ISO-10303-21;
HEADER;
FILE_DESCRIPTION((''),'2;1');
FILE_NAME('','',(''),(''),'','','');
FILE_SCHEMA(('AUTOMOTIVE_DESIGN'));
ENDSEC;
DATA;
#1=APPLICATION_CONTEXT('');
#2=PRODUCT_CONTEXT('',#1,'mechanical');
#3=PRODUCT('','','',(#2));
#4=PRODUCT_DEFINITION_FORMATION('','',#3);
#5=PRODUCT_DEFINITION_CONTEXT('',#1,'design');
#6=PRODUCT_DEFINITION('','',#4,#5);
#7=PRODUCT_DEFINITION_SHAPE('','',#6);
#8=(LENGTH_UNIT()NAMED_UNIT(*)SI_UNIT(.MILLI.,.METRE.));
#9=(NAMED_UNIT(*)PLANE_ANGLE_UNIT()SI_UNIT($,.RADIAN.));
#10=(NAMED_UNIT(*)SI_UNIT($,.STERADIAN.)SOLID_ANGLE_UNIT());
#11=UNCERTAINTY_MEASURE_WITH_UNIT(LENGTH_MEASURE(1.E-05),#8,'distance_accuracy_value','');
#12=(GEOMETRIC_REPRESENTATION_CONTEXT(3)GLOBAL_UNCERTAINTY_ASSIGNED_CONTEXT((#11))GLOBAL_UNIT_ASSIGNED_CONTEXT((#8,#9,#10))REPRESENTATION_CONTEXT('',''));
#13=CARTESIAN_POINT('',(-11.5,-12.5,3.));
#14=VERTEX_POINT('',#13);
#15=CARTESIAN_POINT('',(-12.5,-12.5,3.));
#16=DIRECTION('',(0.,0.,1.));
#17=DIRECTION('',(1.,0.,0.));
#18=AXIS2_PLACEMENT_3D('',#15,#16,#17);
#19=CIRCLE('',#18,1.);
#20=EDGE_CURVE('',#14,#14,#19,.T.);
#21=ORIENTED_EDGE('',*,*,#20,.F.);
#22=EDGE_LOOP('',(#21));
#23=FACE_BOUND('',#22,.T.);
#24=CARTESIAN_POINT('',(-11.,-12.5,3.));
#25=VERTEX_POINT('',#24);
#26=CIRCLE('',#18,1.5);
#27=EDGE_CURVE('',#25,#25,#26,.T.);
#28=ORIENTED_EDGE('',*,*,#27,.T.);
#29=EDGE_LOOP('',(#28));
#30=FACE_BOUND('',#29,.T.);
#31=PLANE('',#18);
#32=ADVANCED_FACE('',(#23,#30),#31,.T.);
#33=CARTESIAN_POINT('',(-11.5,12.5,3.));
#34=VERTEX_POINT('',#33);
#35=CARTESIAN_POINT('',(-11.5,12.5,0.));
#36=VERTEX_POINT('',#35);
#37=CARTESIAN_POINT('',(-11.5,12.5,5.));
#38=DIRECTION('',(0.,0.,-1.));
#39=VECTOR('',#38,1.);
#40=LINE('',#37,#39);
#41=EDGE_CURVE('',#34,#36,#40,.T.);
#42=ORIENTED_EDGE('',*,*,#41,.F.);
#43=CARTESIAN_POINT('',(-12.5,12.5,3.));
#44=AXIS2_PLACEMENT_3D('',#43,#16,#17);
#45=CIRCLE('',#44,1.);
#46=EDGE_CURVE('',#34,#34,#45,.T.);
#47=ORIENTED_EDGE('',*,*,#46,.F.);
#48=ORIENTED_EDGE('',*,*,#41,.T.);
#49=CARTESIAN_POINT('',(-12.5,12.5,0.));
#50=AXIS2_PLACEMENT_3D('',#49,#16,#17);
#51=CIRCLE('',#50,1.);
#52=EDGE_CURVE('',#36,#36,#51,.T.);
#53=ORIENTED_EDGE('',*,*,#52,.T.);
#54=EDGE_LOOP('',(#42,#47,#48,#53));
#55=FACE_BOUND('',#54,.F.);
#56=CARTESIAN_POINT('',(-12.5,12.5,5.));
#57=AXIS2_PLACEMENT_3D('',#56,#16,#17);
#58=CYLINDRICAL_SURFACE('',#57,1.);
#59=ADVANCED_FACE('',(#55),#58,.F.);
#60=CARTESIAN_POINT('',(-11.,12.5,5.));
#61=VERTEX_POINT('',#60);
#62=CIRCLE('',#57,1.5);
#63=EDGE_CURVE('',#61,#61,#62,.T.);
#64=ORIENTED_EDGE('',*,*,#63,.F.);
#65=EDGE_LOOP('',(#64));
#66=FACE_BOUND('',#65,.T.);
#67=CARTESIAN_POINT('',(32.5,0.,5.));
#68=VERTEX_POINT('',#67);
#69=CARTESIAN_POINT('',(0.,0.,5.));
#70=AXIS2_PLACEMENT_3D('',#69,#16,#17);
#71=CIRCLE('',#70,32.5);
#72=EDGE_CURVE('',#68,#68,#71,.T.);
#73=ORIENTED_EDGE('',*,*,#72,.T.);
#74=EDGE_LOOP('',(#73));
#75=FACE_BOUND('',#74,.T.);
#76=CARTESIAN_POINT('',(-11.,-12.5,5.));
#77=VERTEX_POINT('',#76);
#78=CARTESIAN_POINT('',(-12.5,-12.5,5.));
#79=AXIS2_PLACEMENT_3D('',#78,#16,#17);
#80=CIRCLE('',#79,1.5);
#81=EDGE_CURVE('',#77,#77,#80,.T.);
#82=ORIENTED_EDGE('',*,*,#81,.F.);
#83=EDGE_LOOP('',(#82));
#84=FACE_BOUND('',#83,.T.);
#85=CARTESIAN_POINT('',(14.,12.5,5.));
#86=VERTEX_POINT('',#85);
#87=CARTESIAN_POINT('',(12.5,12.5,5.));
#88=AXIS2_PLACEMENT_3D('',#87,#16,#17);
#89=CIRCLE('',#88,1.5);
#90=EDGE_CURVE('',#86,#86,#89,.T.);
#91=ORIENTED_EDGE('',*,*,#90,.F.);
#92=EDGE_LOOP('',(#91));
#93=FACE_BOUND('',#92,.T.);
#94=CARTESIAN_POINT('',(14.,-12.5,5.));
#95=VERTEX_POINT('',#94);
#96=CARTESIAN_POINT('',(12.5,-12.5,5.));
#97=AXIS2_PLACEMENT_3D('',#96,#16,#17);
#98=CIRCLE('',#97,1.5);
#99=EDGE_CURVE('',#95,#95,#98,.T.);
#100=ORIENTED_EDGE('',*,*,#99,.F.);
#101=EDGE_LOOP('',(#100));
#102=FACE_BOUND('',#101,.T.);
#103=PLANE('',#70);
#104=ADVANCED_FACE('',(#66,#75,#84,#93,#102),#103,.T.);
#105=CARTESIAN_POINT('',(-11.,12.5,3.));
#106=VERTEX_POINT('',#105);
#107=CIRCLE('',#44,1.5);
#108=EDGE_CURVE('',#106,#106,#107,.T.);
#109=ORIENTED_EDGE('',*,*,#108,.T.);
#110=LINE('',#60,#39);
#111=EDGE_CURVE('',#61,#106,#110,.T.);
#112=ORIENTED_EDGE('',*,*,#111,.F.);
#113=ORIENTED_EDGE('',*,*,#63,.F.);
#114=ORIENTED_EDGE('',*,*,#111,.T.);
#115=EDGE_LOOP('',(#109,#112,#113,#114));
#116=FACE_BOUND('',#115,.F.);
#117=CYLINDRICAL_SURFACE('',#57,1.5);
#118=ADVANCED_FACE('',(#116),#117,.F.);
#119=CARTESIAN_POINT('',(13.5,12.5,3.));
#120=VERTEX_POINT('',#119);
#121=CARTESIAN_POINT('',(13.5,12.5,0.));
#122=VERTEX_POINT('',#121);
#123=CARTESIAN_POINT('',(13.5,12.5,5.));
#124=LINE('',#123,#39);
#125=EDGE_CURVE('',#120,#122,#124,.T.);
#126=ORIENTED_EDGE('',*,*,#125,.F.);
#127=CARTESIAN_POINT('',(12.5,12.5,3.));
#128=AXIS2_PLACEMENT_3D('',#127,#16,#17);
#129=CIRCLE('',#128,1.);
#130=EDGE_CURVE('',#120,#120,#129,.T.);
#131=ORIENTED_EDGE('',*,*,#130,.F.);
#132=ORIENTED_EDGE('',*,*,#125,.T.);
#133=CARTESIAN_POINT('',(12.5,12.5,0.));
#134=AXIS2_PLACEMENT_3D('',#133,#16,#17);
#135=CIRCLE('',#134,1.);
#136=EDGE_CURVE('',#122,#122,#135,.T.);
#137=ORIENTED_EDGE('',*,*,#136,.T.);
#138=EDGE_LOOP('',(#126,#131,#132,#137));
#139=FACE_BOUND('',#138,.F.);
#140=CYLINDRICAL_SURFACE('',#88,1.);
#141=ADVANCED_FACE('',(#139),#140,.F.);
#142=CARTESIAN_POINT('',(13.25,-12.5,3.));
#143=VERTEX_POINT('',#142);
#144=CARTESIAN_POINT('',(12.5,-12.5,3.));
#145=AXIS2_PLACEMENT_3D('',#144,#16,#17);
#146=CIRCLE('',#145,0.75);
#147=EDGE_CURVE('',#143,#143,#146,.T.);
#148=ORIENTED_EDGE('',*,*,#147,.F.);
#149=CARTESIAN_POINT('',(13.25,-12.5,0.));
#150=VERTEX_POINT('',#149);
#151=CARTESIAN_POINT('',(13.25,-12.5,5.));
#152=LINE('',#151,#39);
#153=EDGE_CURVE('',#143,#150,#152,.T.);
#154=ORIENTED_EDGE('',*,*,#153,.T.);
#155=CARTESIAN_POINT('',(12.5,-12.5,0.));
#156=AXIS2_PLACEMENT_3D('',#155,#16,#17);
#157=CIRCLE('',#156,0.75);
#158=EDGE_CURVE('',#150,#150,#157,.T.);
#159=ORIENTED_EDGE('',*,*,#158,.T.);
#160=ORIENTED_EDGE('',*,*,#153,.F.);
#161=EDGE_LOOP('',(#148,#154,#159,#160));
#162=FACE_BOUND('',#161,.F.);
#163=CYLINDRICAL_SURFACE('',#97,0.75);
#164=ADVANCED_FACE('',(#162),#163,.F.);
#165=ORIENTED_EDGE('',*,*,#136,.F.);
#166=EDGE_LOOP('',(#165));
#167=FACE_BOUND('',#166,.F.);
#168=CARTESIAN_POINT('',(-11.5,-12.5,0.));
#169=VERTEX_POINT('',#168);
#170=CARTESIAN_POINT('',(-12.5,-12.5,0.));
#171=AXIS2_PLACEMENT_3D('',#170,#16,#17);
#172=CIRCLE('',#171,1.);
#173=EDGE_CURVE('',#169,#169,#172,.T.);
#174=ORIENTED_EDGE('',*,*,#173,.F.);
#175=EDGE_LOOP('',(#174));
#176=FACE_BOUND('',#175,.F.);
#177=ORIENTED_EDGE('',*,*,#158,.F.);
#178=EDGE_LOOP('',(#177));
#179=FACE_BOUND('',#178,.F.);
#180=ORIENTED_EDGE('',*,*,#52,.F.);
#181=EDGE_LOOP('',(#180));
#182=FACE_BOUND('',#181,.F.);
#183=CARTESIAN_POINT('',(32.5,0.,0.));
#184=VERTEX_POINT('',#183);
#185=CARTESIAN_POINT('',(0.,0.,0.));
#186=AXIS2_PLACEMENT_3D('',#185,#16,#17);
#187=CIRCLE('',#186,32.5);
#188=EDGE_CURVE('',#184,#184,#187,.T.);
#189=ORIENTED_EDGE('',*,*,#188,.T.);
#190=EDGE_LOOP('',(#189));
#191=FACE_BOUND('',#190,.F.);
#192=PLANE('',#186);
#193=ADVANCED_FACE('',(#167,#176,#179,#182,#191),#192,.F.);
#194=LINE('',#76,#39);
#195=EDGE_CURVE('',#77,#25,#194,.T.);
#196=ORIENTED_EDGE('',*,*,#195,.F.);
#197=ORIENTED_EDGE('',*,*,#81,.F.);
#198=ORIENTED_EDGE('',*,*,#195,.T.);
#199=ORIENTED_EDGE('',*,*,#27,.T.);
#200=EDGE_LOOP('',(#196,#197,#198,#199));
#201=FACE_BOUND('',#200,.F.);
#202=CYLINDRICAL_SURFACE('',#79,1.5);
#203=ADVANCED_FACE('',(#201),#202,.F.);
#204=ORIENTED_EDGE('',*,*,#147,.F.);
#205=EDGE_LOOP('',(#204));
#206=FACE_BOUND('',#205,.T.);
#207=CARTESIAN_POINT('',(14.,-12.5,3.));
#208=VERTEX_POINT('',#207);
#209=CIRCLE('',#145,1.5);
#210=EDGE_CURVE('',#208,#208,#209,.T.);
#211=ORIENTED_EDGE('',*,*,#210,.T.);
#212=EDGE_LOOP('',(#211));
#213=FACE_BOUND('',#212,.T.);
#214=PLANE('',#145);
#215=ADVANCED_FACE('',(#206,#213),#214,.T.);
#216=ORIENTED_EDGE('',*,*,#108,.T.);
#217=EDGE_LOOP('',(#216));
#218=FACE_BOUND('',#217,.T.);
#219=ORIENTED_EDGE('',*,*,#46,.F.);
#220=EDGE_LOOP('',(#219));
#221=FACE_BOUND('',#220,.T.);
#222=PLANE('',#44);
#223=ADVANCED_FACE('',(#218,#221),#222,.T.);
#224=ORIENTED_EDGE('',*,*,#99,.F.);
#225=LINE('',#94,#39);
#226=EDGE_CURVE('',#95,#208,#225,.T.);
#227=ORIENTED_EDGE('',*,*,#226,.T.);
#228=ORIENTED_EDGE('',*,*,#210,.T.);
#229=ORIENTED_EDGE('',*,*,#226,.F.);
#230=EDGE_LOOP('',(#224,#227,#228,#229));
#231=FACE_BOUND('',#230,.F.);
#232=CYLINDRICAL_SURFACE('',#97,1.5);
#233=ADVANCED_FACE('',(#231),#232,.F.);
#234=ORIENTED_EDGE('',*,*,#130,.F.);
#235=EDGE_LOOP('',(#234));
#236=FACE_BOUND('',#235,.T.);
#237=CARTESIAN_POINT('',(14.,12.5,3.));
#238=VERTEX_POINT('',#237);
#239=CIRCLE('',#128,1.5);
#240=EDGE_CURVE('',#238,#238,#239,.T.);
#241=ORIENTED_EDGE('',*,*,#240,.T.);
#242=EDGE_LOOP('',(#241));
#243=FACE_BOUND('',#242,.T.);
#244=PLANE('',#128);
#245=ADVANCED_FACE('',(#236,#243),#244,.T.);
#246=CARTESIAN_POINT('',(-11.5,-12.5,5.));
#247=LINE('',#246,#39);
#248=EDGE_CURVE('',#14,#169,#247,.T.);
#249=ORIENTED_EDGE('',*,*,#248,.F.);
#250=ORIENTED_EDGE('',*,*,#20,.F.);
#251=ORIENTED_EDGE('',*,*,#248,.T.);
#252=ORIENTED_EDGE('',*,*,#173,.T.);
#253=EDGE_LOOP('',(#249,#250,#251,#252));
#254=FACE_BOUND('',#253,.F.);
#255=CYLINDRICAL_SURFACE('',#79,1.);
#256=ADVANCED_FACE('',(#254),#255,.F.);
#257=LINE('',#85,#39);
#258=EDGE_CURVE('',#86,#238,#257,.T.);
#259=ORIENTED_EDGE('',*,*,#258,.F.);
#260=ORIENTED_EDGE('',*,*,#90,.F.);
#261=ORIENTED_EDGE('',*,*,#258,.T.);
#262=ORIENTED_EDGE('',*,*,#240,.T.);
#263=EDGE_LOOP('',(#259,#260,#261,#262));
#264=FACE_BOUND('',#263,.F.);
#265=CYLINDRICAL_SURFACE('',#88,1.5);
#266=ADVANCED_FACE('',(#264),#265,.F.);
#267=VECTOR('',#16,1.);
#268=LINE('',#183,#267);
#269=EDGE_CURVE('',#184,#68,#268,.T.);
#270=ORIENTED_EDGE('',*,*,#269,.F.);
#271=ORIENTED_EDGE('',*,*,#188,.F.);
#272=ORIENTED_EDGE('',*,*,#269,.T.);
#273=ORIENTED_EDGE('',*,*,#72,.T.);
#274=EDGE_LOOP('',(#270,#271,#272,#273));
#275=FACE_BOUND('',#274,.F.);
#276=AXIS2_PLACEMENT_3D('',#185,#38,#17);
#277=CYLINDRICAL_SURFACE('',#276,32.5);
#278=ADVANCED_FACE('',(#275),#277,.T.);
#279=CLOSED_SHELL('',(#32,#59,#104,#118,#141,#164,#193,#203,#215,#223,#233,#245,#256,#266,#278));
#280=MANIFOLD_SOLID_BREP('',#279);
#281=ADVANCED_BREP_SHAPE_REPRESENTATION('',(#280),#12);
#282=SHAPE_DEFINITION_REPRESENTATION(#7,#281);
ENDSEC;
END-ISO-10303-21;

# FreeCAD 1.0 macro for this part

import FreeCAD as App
import Part
import Sketcher
from FreeCAD import Vector

doc = App.newDocument("Part")
body = doc.addObject("PartDesign::Body", "Body")

# Sketch on XY plane
sketch1 = doc.addObject("Sketcher::SketchObject", "Sketch")
body.addObject(sketch1)
sketch1.AttachmentSupport = (doc.XY_Plane, [""])
sketch1.MapMode = "FlatFace"
sketch1.addGeometry(Part.Circle(Vector(0, 0, 0), Vector(0, 0, 1), 32.5), False)
sketch1.addConstraint([
    Sketcher.Constraint("Coincident", 0, 3, -1, 1),
    Sketcher.Constraint("Diameter", 0, 65.0),
])
pad1 = doc.addObject("PartDesign::Pad", "Pad")
body.addObject(pad1)
pad1.Profile = sketch1
pad1.Length = 5

# Sketch on XY plane
sketch2 = doc.addObject("Sketcher::SketchObject", "Sketch001")
body.addObject(sketch2)
sketch2.AttachmentSupport = (doc.XY_Plane, [""])
sketch2.MapMode = "FlatFace"
sketch2.AttachmentOffset = App.Placement(Vector(0, 0, 5), App.Rotation())
sketch2.addGeometry([
    Part.Circle(Vector(12.5, -12.5, 0), Vector(0, 0, 1), 0.75),
    Part.Circle(Vector(-12.5, 12.5, 0), Vector(0, 0, 1), 1),
    Part.Circle(Vector(-12.5, -12.5, 0), Vector(0, 0, 1), 1),
    Part.Circle(Vector(12.5, 12.5, 0), Vector(0, 0, 1), 1),
], False)
sketch2.addConstraint([
    Sketcher.Constraint("Equal", 1, 2),
    Sketcher.Constraint("Equal", 2, 3),
    Sketcher.Constraint("Symmetric", 0, 3, 1, 3, -1, 1),
    Sketcher.Constraint("Symmetric", 2, 3, 3, 3, -1, 1),
    Sketcher.Constraint("Symmetric", 0, 3, 2, 3, -2),
    Sketcher.Constraint("Diameter", 1, 2.0),
    Sketcher.Constraint("Diameter", 0, 1.5),
    Sketcher.Constraint("DistanceX", 1, 3, 0, 3, 25.0),
    Sketcher.Constraint("DistanceY", 0, 3, 1, 3, 25.0),
])
pocket1 = doc.addObject("PartDesign::Pocket", "Pocket")
body.addObject(pocket1)
pocket1.Profile = sketch2
pocket1.Length = 5

# Sketch on XY plane
sketch3 = doc.addObject("Sketcher::SketchObject", "Sketch002")
body.addObject(sketch3)
sketch3.AttachmentSupport = (doc.XY_Plane, [""])
sketch3.MapMode = "FlatFace"
sketch3.AttachmentOffset = App.Placement(Vector(0, 0, 5), App.Rotation())
sketch3.addGeometry([
    Part.Circle(Vector(12.5, 12.5, 0), Vector(0, 0, 1), 1.5),
    Part.Circle(Vector(12.5, -12.5, 0), Vector(0, 0, 1), 1.5),
    Part.Circle(Vector(-12.5, -12.5, 0), Vector(0, 0, 1), 1.5),
    Part.Circle(Vector(-12.5, 12.5, 0), Vector(0, 0, 1), 1.5),
], False)
sketch3.addConstraint([
    Sketcher.Constraint("Equal", 0, 1),
    Sketcher.Constraint("Equal", 1, 2),
    Sketcher.Constraint("Equal", 2, 3),
    Sketcher.Constraint("Symmetric", 0, 3, 2, 3, -1, 1),
    Sketcher.Constraint("Symmetric", 1, 3, 3, 3, -1, 1),
    Sketcher.Constraint("Symmetric", 1, 3, 2, 3, -2),
    Sketcher.Constraint("Diameter", 0, 3.0),
    Sketcher.Constraint("DistanceY", 1, 3, 0, 3, 25.0),
    Sketcher.Constraint("DistanceX", 2, 3, 1, 3, 25.0),
])
pocket2 = doc.addObject("PartDesign::Pocket", "Pocket001")
body.addObject(pocket2)
pocket2.Profile = sketch3
pocket2.Length = 2

doc.recompute()
